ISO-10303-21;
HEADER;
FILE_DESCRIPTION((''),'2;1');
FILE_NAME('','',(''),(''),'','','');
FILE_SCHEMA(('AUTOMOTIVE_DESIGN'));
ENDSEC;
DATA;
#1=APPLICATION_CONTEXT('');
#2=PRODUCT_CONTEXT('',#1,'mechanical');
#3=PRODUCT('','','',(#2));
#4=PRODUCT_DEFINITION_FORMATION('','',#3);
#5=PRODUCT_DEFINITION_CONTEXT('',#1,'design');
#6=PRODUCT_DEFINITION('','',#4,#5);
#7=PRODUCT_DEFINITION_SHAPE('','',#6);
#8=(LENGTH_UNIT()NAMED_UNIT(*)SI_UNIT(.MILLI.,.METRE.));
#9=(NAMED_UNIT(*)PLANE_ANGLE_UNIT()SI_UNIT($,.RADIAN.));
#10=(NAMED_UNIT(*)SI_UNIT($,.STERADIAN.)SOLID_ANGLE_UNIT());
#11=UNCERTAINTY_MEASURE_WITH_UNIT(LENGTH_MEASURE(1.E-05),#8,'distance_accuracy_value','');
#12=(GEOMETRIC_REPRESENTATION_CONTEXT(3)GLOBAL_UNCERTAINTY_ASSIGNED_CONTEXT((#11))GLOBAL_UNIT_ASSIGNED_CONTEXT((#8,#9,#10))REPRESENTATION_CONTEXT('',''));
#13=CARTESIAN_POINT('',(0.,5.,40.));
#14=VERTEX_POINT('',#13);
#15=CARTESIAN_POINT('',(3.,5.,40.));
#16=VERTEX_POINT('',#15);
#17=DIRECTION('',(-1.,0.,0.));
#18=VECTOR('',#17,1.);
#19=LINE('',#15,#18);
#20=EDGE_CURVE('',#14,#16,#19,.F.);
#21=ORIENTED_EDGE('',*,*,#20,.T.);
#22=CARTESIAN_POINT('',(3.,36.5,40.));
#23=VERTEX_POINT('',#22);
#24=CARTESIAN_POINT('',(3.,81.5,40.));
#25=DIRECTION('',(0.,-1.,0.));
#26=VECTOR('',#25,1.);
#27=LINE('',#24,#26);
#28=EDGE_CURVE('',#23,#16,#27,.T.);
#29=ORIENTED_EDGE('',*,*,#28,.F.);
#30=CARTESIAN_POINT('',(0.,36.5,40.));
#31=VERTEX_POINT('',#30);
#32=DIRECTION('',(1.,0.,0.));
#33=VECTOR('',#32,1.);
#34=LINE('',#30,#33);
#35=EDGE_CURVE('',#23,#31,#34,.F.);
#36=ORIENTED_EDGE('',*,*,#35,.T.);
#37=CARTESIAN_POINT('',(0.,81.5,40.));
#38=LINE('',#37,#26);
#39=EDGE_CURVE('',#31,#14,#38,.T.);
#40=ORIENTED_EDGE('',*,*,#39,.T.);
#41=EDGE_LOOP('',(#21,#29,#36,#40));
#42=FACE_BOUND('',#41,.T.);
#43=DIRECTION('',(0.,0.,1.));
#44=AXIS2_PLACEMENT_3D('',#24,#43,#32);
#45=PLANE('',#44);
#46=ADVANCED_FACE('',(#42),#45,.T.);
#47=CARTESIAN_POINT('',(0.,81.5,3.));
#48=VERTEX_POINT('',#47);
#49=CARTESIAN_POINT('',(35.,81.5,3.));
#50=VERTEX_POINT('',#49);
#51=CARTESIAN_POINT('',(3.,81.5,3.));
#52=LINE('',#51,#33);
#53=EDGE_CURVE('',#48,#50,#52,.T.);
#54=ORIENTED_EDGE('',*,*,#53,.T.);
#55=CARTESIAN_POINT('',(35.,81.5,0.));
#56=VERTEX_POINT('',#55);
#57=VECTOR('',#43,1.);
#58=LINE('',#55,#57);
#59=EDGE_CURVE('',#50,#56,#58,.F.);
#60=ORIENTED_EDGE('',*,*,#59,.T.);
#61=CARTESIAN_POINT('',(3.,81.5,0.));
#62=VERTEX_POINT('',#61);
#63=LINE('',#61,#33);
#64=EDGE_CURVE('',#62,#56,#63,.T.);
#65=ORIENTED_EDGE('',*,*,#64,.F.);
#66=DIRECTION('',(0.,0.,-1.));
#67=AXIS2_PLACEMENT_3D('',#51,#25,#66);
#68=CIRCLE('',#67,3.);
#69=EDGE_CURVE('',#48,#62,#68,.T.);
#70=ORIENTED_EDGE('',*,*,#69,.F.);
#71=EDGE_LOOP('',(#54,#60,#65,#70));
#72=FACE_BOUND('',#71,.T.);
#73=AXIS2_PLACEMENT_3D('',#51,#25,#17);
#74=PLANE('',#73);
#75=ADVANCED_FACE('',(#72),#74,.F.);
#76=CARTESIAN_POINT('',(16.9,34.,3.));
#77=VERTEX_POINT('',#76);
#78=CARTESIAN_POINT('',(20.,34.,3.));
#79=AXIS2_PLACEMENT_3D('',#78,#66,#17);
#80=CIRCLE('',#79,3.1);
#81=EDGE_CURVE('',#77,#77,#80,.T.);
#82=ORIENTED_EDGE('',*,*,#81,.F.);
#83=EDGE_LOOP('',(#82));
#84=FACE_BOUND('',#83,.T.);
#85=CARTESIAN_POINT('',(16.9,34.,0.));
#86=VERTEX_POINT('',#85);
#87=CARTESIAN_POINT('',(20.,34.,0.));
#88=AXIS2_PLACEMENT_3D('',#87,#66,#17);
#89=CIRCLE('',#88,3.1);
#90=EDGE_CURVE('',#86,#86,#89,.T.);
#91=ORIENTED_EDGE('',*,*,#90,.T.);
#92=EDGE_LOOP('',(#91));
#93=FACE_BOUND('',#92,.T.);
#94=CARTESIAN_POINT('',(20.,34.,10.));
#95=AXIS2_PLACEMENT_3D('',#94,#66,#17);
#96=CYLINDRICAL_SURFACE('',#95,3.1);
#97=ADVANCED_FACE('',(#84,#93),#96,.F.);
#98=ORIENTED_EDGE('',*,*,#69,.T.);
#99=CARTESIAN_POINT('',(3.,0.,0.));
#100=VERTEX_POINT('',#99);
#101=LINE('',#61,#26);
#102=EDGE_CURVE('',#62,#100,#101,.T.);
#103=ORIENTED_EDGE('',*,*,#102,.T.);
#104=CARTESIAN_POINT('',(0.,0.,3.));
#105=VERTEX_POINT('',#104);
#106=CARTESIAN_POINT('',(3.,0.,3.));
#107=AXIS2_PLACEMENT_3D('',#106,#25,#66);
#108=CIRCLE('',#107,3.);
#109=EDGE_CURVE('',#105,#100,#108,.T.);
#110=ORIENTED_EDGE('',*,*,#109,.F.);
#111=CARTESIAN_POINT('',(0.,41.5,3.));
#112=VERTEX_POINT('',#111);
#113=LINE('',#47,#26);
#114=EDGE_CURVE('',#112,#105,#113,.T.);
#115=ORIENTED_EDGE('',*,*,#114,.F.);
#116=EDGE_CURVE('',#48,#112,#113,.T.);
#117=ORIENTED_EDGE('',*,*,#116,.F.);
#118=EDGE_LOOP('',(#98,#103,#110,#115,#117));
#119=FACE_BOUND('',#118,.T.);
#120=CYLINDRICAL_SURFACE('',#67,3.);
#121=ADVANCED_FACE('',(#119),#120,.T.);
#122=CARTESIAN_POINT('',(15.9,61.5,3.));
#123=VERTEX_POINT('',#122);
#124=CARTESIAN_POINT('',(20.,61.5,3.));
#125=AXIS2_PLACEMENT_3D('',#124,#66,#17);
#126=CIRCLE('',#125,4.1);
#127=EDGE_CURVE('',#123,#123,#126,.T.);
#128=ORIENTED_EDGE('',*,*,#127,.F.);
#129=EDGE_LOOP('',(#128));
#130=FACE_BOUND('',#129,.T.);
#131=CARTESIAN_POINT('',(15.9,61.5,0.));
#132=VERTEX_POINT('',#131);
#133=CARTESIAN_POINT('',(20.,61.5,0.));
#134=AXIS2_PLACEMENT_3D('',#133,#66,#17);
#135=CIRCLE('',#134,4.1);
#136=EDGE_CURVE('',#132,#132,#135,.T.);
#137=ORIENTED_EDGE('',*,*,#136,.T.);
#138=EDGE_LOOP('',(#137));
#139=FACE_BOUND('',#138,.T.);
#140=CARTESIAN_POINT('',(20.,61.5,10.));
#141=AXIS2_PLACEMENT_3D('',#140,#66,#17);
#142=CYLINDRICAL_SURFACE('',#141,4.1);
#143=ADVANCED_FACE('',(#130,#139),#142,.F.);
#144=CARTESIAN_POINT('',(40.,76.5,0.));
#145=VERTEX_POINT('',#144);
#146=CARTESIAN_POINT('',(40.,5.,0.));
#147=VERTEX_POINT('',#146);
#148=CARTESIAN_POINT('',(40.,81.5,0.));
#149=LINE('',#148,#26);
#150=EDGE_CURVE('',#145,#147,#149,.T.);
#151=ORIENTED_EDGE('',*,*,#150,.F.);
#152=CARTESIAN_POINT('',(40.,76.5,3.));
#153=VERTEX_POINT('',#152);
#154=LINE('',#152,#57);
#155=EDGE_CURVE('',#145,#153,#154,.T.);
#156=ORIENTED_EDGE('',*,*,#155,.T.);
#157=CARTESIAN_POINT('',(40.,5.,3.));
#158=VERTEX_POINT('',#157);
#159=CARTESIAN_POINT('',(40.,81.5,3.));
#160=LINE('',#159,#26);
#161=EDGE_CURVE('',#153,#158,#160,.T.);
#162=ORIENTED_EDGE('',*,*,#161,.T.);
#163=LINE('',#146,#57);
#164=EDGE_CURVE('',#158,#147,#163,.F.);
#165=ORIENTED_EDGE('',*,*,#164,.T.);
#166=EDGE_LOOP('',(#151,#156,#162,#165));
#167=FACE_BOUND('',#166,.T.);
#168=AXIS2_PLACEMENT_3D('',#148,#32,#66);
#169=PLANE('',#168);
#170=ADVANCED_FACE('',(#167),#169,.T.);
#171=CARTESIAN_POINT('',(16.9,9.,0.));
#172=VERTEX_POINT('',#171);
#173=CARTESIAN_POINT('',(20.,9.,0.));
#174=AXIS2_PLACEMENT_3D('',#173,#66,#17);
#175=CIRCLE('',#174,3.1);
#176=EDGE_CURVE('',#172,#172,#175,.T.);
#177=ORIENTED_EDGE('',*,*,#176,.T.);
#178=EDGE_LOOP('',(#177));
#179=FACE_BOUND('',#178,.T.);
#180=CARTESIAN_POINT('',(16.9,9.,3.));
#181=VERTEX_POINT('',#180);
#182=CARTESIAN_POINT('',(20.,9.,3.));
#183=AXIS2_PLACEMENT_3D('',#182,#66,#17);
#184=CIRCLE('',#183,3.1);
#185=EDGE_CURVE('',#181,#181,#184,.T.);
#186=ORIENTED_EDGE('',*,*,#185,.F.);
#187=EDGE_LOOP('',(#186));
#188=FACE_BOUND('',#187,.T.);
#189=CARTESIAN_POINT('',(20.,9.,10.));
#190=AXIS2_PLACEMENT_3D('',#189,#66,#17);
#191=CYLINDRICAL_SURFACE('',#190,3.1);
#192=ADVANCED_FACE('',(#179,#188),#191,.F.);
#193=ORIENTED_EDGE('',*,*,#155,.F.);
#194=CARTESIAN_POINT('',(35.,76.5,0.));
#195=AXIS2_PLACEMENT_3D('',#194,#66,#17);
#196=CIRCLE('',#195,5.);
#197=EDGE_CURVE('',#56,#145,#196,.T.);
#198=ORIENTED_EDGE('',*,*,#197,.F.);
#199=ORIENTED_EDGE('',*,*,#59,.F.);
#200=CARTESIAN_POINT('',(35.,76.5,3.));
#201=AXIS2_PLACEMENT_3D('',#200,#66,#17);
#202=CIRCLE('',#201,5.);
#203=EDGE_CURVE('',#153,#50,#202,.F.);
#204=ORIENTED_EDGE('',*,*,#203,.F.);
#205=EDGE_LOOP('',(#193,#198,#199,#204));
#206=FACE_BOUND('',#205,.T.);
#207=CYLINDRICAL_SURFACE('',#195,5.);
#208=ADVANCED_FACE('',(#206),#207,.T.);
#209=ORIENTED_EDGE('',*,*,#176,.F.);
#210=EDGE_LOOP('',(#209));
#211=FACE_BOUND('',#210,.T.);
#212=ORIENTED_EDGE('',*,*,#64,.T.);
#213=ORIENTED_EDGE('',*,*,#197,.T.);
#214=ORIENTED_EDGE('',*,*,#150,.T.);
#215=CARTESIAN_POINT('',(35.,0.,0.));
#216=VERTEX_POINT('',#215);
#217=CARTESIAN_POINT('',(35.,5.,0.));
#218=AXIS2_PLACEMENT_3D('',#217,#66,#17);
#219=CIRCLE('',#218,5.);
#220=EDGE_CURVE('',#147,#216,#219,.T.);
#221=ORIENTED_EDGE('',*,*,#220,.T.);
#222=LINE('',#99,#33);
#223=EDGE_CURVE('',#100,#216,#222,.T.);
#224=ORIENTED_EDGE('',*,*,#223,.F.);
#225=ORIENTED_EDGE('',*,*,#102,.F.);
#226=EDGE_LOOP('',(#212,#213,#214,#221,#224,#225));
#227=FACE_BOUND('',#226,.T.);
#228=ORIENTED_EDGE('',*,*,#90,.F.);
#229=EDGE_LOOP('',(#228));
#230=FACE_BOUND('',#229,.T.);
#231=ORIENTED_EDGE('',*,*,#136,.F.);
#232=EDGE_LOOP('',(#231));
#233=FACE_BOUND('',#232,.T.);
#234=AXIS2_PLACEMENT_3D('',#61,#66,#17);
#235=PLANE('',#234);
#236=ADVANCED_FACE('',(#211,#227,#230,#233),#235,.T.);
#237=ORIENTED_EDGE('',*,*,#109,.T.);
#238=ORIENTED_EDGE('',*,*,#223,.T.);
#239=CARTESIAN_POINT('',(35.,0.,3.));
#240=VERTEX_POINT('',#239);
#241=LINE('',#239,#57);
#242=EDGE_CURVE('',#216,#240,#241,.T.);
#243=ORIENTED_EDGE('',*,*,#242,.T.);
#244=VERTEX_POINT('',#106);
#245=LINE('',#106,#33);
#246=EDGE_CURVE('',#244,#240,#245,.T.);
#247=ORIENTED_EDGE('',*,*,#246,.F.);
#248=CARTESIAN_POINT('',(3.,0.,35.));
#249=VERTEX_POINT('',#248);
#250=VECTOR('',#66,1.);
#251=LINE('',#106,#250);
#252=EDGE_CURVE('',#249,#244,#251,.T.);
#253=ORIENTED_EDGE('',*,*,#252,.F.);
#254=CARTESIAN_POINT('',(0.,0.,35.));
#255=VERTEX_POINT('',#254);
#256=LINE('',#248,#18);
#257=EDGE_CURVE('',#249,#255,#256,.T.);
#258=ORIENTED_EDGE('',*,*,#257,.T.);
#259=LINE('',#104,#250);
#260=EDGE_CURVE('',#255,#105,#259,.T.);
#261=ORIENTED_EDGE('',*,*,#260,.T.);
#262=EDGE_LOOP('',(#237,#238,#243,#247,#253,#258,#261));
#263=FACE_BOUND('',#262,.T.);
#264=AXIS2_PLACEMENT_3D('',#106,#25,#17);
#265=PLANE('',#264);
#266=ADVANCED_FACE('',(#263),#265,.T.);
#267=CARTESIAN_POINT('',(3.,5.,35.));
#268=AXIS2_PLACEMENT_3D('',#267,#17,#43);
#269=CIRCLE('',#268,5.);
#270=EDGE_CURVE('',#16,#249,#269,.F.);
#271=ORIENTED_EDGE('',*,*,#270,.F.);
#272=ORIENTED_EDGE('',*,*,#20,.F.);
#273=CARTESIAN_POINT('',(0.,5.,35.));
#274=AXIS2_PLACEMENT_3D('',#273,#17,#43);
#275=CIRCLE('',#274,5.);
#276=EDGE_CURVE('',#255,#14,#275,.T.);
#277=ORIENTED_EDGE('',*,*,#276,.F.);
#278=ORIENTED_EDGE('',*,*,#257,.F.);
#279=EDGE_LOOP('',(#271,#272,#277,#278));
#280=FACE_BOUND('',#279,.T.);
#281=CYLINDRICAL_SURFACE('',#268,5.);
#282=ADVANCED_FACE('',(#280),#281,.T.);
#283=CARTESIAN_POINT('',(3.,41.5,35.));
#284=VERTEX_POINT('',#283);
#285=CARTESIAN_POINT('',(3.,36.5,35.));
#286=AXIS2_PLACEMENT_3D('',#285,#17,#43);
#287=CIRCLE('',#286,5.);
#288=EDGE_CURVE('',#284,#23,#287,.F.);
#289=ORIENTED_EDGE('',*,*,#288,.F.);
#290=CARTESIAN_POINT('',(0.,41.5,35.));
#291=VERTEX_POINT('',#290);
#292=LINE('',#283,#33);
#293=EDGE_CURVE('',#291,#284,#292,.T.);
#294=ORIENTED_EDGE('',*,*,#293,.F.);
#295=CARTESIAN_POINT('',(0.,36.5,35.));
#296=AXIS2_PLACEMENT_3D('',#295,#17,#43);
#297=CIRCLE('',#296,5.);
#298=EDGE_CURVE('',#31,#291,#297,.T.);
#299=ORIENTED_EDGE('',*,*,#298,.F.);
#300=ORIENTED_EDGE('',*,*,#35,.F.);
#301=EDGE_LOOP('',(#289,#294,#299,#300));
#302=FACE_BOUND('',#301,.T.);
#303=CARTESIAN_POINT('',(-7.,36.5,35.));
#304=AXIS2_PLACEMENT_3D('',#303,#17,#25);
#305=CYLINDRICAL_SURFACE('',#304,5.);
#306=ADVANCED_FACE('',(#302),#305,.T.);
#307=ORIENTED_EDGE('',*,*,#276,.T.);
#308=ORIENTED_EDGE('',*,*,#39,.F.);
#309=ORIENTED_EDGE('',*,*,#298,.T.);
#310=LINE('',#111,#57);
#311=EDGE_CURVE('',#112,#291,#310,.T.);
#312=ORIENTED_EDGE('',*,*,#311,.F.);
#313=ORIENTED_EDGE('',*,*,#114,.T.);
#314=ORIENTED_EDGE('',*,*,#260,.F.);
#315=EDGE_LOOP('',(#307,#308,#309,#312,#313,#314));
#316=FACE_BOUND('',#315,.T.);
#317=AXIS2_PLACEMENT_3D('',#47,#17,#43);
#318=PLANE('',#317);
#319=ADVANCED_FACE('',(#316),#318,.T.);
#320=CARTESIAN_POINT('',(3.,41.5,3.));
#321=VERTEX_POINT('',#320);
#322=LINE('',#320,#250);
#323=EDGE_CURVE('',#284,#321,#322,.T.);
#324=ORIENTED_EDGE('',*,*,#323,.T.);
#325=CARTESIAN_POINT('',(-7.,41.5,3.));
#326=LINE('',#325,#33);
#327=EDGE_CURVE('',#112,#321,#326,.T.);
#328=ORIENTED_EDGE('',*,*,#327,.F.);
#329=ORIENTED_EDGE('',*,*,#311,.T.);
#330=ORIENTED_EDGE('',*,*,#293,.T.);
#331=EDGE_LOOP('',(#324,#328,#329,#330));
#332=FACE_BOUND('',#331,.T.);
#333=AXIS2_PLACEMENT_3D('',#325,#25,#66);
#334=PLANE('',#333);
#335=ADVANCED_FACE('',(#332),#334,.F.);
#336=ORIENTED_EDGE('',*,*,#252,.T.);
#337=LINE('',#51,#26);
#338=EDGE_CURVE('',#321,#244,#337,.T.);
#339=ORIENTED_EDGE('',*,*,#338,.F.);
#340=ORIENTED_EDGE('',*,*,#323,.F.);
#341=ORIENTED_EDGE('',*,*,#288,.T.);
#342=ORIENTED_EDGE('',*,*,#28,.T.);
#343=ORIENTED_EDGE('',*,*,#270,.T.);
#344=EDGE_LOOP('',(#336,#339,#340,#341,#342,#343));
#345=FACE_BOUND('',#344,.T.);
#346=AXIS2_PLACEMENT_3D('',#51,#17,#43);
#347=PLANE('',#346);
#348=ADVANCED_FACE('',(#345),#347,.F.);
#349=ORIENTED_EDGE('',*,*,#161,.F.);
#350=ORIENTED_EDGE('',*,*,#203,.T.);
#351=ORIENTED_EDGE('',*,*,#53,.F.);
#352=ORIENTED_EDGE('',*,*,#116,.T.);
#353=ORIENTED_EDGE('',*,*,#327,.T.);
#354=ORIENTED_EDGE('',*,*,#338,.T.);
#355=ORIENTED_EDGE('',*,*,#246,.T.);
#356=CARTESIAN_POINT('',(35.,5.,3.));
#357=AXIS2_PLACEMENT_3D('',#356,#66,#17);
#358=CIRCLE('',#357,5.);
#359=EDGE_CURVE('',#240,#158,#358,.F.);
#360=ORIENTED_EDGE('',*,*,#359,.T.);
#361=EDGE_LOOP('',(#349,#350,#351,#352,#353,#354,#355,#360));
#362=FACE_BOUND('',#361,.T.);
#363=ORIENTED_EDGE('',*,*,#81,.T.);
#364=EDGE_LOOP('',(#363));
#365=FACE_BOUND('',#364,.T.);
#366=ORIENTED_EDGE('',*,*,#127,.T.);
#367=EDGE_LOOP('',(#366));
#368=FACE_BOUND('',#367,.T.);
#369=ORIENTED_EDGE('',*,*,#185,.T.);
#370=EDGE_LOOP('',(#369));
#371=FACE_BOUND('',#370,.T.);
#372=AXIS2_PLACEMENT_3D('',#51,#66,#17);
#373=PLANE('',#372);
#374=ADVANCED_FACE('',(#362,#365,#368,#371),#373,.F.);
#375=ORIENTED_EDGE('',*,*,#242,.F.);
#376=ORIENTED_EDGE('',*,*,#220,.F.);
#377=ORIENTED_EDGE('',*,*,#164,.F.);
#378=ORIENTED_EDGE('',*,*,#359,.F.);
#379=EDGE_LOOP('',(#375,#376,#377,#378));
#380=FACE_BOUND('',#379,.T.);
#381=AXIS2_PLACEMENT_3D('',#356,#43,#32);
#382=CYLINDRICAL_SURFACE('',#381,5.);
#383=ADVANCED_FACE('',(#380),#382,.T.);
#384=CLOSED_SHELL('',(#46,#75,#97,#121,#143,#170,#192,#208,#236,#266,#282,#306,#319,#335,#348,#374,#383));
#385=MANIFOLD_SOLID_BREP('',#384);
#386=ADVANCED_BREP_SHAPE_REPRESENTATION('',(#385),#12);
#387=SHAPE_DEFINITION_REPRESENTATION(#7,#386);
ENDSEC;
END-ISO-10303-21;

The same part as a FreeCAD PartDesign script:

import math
import FreeCAD as App
import Part
import Sketcher
from FreeCAD import Vector
Q = App.Units.Quantity


def edges_at(feature, points):
    """Names of the edges that pass closest to the given points."""
    edges = feature.Shape.Edges
    near = lambda p: min(range(len(edges)), key=lambda i: edges[i].distToShape(Part.Vertex(*p))[0])
    return sorted({f"Edge{near(p) + 1}" for p in points})

doc = App.newDocument("Part")
params = doc.addObject("Spreadsheet::Sheet", "Params")
for row, (alias, value) in enumerate([
    ("sketch1_radius", "3 mm"),
    ("sketch1_width", "37 mm"),
    ("pad1_length", "81.5 mm"),
    ("sketch2_width", "40 mm"),
    ("sketch2_height", "37 mm"),
    ("pocket1_length", "10 mm"),
    ("sketch3_diameter", "8.2 mm"),
    ("pocket2_length", "10 mm"),
    ("sketch4_diameter", "6.2 mm"),
    ("pocket3_length", "10 mm"),
    ("fillet_radius", "5 mm"),
], start=1):
    params.set(f"A{row}", alias)
    params.set(f"B{row}", "=" + value)
    params.setAlias(f"B{row}", alias)

body = doc.addObject("PartDesign::Body", "Body")

# Sketch on XZ plane
sketch1 = body.newObject("Sketcher::SketchObject", "Sketch")
sketch1.AttachmentSupport = (doc.getObject("XZ_Plane"), [""])
sketch1.MapMode = "FlatFace"
sketch1.addGeometry(Part.LineSegment(Vector(40, 0, 0), Vector(3, 0, 0)), False)
sketch1.addGeometry(Part.ArcOfCircle(Part.Circle(Vector(3, 3, 0), Vector(0, 0, 1), 3), math.radians(180), math.radians(270)), False)
sketch1.addGeometry(Part.LineSegment(Vector(0, 3, 0), Vector(0, 40, 0)), False)
sketch1.addGeometry(Part.LineSegment(Vector(0, 40, 0), Vector(3, 40, 0)), False)
sketch1.addGeometry(Part.LineSegment(Vector(3, 40, 0), Vector(3, 3, 0)), False)
sketch1.addGeometry(Part.LineSegment(Vector(3, 3, 0), Vector(40, 3, 0)), False)
sketch1.addGeometry(Part.LineSegment(Vector(40, 3, 0), Vector(40, 0, 0)), False)
sketch1.addConstraint(Sketcher.Constraint("Tangent", 0, 2, 1, 2))
sketch1.addConstraint(Sketcher.Constraint("Tangent", 1, 1, 2, 1))
sketch1.addConstraint(Sketcher.Constraint("Coincident", 2, 2, 3, 1))
sketch1.addConstraint(Sketcher.Constraint("Coincident", 3, 2, 4, 1))
sketch1.addConstraint(Sketcher.Constraint("Coincident", 4, 2, 5, 1))
sketch1.addConstraint(Sketcher.Constraint("Coincident", 5, 2, 6, 1))
sketch1.addConstraint(Sketcher.Constraint("Coincident", 6, 2, 0, 1))
sketch1.addConstraint(Sketcher.Constraint("Horizontal", 0))
sketch1.addConstraint(Sketcher.Constraint("Vertical", 2))
sketch1.addConstraint(Sketcher.Constraint("Horizontal", 3))
sketch1.addConstraint(Sketcher.Constraint("Vertical", 4))
sketch1.addConstraint(Sketcher.Constraint("Horizontal", 5))
sketch1.addConstraint(Sketcher.Constraint("Vertical", 6))
sketch1.addConstraint(Sketcher.Constraint("Coincident", 4, 2, 1, 3))
sketch1.addConstraint(Sketcher.Constraint("PointOnObject", 0, 2, -1))
sketch1.addConstraint(Sketcher.Constraint("PointOnObject", 1, 1, -2))
sketch1.addConstraint(Sketcher.Constraint("Equal", 5, 2))
sketch1.addConstraint(Sketcher.Constraint("Radius", 1, Q("3 mm")))
sketch1.addConstraint(Sketcher.Constraint("DistanceX", 0, 2, 0, 1, Q("37 mm")))
sketch1.setExpression("Constraints[17]", "Params.sketch1_radius")
sketch1.setExpression("Constraints[18]", "Params.sketch1_width")
pad1 = body.newObject("PartDesign::Pad", "Pad")
pad1.Profile = sketch1
pad1.setExpression("Length", "Params.pad1_length")
pad1.Reversed = True

# Sketch on YZ plane
sketch2 = body.newObject("Sketcher::SketchObject", "Sketch001")
sketch2.AttachmentSupport = (doc.getObject("YZ_Plane"), [""])
sketch2.MapMode = "FlatFace"
sketch2.AttachmentOffset = App.Placement(Vector(0, 0, 3), App.Rotation())
sketch2.addGeometry(Part.LineSegment(Vector(82, 40, 0), Vector(42, 40, 0)), False)
sketch2.addGeometry(Part.LineSegment(Vector(42, 40, 0), Vector(42, 3, 0)), False)
sketch2.addGeometry(Part.LineSegment(Vector(42, 3, 0), Vector(82, 3, 0)), False)
sketch2.addGeometry(Part.LineSegment(Vector(82, 3, 0), Vector(82, 40, 0)), False)
sketch2.addConstraint(Sketcher.Constraint("Coincident", 0, 2, 1, 1))
sketch2.addConstraint(Sketcher.Constraint("Coincident", 1, 2, 2, 1))
sketch2.addConstraint(Sketcher.Constraint("Coincident", 2, 2, 3, 1))
sketch2.addConstraint(Sketcher.Constraint("Coincident", 3, 2, 0, 1))
sketch2.addConstraint(Sketcher.Constraint("Horizontal", 0))
sketch2.addConstraint(Sketcher.Constraint("Vertical", 1))
sketch2.addConstraint(Sketcher.Constraint("Horizontal", 2))
sketch2.addConstraint(Sketcher.Constraint("Vertical", 3))
sketch2.addConstraint(Sketcher.Constraint("DistanceX", 0, 2, 0, 1, Q("40 mm")))
sketch2.addConstraint(Sketcher.Constraint("DistanceY", 1, 2, 1, 1, Q("37 mm")))
sketch2.addConstraint(Sketcher.Constraint("DistanceY", -1, 1, 0, 2, Q("40 mm")))
sketch2.addConstraint(Sketcher.Constraint("DistanceX", -1, 1, 0, 2, Q("41.5 mm")))
sketch2.setExpression("Constraints[8]", "Params.sketch2_width")
sketch2.setExpression("Constraints[9]", "Params.sketch2_height")
pocket1 = body.newObject("PartDesign::Pocket", "Pocket")
pocket1.Profile = sketch2
pocket1.setExpression("Length", "Params.pocket1_length")

# Sketch on XY plane
sketch3 = body.newObject("Sketcher::SketchObject", "Sketch002")
sketch3.AttachmentSupport = (doc.getObject("XY_Plane"), [""])
sketch3.MapMode = "FlatFace"
sketch3.addGeometry(Part.Circle(Vector(20, 61.5, 0), Vector(0, 0, 1), 4.1), False)
sketch3.addConstraint(Sketcher.Constraint("Diameter", 0, Q("8.2 mm")))
sketch3.addConstraint(Sketcher.Constraint("DistanceX", -1, 1, 0, 3, Q("20 mm")))
sketch3.addConstraint(Sketcher.Constraint("DistanceY", -1, 1, 0, 3, Q("61.5 mm")))
sketch3.setExpression("Constraints[0]", "Params.sketch3_diameter")
pocket2 = body.newObject("PartDesign::Pocket", "Pocket001")
pocket2.Profile = sketch3
pocket2.setExpression("Length", "Params.pocket2_length")
pocket2.Reversed = True

# Sketch on XY plane
sketch4 = body.newObject("Sketcher::SketchObject", "Sketch003")
sketch4.AttachmentSupport = (doc.getObject("XY_Plane"), [""])
sketch4.MapMode = "FlatFace"
sketch4.addGeometry(Part.Circle(Vector(20, 9, 0), Vector(0, 0, 1), 3.1), False)
sketch4.addGeometry(Part.Circle(Vector(20, 34, 0), Vector(0, 0, 1), 3.1), False)
sketch4.addConstraint(Sketcher.Constraint("Equal", 0, 1))
sketch4.addConstraint(Sketcher.Constraint("Vertical", 0, 3, 1, 3))
sketch4.addConstraint(Sketcher.Constraint("Diameter", 0, Q("6.2 mm")))
sketch4.addConstraint(Sketcher.Constraint("DistanceX", -1, 1, 0, 3, Q("20 mm")))
sketch4.addConstraint(Sketcher.Constraint("DistanceY", -1, 1, 0, 3, Q("9 mm")))
sketch4.addConstraint(Sketcher.Constraint("DistanceY", -1, 1, 1, 3, Q("34 mm")))
sketch4.setExpression("Constraints[2]", "Params.sketch4_diameter")
pocket3 = body.newObject("PartDesign::Pocket", "Pocket002")
pocket3.Profile = sketch4
pocket3.setExpression("Length", "Params.pocket3_length")
pocket3.Reversed = True
doc.recompute()

fillet = body.newObject("PartDesign::Fillet", "Fillet")
fillet.Base = (pocket3, edges_at(pocket3, [
    (1.5, 41.5, 40),
    (1.5, 0, 40),
    (40, 81.5, 1.5),
    (40, 0, 1.5),
]))
fillet.setExpression("Radius", "Params.fillet_radius")

doc.recompute()
